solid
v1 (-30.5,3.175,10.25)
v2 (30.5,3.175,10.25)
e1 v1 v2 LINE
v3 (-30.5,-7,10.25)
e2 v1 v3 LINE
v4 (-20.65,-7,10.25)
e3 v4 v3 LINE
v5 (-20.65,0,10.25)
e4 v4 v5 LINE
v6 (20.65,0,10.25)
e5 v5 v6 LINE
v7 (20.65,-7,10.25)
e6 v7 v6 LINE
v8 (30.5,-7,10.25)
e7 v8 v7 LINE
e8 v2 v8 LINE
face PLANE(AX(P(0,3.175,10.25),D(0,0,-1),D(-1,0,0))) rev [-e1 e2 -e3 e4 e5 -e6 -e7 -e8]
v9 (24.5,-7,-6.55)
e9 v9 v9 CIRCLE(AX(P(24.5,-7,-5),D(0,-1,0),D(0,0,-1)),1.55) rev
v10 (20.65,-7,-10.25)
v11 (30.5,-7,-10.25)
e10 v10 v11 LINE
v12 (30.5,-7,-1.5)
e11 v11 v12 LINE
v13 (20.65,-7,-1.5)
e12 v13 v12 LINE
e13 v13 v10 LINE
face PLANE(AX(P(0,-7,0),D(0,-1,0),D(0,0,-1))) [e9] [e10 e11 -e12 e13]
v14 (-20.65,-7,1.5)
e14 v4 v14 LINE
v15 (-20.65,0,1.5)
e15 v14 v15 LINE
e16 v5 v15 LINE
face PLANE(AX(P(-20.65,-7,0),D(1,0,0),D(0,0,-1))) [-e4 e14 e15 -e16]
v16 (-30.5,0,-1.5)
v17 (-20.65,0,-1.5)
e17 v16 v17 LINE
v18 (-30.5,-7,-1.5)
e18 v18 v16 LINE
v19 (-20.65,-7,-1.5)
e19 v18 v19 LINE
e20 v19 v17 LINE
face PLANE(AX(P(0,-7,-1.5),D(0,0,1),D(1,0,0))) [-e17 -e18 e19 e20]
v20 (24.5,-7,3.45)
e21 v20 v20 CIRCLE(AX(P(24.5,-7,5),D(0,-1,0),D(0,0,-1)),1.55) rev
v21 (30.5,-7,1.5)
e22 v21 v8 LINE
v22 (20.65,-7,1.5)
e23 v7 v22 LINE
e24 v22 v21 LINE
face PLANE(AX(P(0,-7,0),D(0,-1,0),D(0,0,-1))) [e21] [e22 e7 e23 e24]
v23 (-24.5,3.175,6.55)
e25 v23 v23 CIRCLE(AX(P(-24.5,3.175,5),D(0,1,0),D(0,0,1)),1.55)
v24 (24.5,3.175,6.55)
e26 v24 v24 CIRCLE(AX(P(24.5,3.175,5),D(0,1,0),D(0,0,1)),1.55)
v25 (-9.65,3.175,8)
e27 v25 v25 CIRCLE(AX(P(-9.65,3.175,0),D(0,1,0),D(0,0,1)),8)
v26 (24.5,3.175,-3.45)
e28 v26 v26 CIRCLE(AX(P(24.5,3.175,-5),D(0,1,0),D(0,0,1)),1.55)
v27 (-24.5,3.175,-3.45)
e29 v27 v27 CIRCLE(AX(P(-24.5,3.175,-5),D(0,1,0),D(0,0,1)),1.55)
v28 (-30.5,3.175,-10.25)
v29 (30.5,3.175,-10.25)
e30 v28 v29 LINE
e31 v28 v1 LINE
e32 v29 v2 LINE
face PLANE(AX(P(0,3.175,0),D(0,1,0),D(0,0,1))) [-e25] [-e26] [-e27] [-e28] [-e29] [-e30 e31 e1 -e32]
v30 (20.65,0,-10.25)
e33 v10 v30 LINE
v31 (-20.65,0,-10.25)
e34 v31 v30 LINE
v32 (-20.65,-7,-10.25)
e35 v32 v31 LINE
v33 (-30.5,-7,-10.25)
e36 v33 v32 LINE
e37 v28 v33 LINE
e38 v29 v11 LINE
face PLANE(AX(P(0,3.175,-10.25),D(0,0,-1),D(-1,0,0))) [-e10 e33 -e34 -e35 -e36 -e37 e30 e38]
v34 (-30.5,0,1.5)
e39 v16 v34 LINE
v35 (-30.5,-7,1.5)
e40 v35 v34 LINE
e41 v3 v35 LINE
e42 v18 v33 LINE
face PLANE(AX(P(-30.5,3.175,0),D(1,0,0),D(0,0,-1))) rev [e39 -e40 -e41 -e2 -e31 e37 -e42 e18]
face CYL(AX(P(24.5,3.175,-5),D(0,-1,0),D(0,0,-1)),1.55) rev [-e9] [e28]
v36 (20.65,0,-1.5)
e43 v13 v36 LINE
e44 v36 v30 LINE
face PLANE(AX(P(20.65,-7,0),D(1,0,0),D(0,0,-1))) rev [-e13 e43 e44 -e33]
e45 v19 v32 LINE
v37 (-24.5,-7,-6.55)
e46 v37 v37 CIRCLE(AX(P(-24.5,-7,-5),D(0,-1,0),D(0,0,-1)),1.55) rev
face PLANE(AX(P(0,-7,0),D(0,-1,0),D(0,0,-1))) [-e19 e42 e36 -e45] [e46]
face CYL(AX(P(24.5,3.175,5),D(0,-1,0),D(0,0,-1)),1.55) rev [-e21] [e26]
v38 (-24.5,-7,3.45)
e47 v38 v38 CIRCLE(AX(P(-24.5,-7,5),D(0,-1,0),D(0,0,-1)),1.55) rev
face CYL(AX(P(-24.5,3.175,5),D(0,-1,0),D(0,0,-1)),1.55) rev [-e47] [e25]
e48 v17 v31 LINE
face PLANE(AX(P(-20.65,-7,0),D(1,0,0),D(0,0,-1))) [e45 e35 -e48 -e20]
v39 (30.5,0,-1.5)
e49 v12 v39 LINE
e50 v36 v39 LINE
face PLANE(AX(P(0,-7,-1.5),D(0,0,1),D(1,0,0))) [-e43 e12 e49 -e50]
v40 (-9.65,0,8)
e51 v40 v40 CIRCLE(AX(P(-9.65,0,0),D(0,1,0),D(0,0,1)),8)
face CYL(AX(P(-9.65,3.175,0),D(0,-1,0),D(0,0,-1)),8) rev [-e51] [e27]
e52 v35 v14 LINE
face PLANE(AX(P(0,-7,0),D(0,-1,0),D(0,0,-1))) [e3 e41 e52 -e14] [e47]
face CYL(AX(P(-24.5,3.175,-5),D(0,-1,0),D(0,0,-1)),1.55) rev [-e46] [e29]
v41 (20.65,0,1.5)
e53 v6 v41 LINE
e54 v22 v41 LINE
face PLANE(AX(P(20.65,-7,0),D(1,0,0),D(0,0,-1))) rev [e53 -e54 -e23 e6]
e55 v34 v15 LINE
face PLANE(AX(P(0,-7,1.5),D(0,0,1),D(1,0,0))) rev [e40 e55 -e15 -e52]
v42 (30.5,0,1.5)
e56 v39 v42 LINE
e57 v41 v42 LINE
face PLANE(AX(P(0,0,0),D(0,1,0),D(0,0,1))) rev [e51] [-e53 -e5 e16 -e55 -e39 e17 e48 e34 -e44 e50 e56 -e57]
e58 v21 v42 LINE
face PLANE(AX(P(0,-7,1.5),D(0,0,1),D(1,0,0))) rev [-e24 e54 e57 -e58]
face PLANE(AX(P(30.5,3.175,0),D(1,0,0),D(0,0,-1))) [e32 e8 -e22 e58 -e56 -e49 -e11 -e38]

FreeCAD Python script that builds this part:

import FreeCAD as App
import Part
import Sketcher
from FreeCAD import Vector
Q = App.Units.Quantity


def add_polygon(sketch, points):
    """Adds a closed chain of lines whose ends are joined by coincident constraints."""
    first, n = sketch.GeometryCount, len(points)
    for a, b in zip(points, points[1:] + points[:1]):
        sketch.addGeometry(Part.LineSegment(App.Vector(*a, 0), App.Vector(*b, 0)), False)
    for i in range(n):
        sketch.addConstraint(Sketcher.Constraint("Coincident", first + i, 2, first + (i + 1) % n, 1))

doc = App.newDocument("Part")
body = doc.addObject("PartDesign::Body", "Body")

# Sketch on XZ plane
sketch1 = body.newObject("Sketcher::SketchObject", "Sketch")
sketch1.AttachmentSupport = (doc.getObject("XZ_Plane"), [""])
sketch1.MapMode = "FlatFace"
add_polygon(sketch1, [(-30.5, -10.2), (-30.5, 10.2), (30.5, 10.2), (30.5, -10.2)])  # lines 0-3
sketch1.addGeometry(Part.Circle(Vector(-24.5, 5, 0), Vector(0, 0, 1), 1.6), False)  # 4
sketch1.addGeometry(Part.Circle(Vector(24.5, 5, 0), Vector(0, 0, 1), 1.6), False)  # 5
sketch1.addGeometry(Part.Circle(Vector(-9.7, 0, 0), Vector(0, 0, 1), 8), False)  # 6
sketch1.addGeometry(Part.Circle(Vector(-24.5, -5, 0), Vector(0, 0, 1), 1.6), False)  # 7
sketch1.addGeometry(Part.Circle(Vector(24.5, -5, 0), Vector(0, 0, 1), 1.6), False)  # 8
sketch1.addConstraint(Sketcher.Constraint("Vertical", 0))
sketch1.addConstraint(Sketcher.Constraint("Horizontal", 1))
sketch1.addConstraint(Sketcher.Constraint("Vertical", 2))
sketch1.addConstraint(Sketcher.Constraint("Horizontal", 3))
sketch1.addConstraint(Sketcher.Constraint("Equal", 4, 5))
sketch1.addConstraint(Sketcher.Constraint("Equal", 5, 7))
sketch1.addConstraint(Sketcher.Constraint("Equal", 7, 8))
sketch1.addConstraint(Sketcher.Constraint("Symmetric", 5, 3, 7, 3, -1, 1))
sketch1.addConstraint(Sketcher.Constraint("Symmetric", 4, 3, 8, 3, -1, 1))
sketch1.addConstraint(Sketcher.Constraint("Symmetric", 0, 2, 2, 2, -1, 1))
sketch1.addConstraint(Sketcher.Constraint("Symmetric", 4, 3, 5, 3, -2))
sketch1.addConstraint(Sketcher.Constraint("PointOnObject", 6, 3, -1))
sketch1.addConstraint(Sketcher.Constraint("Diameter", 6, Q("16 mm")))
sketch1.addConstraint(Sketcher.Constraint("Diameter", 4, Q("3.1 mm")))
sketch1.addConstraint(Sketcher.Constraint("DistanceX", 1, 1, 1, 2, Q("61 mm")))
sketch1.addConstraint(Sketcher.Constraint("DistanceY", 0, 1, 0, 2, Q("20.5 mm")))
sketch1.addConstraint(Sketcher.Constraint("DistanceY", -1, 1, 4, 3, Q("5 mm")))
sketch1.addConstraint(Sketcher.Constraint("DistanceX", 4, 3, 5, 3, Q("49 mm")))
sketch1.addConstraint(Sketcher.Constraint("DistanceX", 6, 3, -1, 1, Q("9.65 mm")))
pad1 = body.newObject("PartDesign::Pad", "Pad")
pad1.Profile = sketch1
pad1.Length = 3.175
pad1.Reversed = True

# Sketch on XZ plane
sketch2 = body.newObject("Sketcher::SketchObject", "Sketch001")
sketch2.AttachmentSupport = (doc.getObject("XZ_Plane"), [""])
sketch2.MapMode = "FlatFace"
add_polygon(sketch2, [(-30.5, 10.2), (-30.5, 1.5), (-20.6, 1.5), (-20.6, 10.2)])  # lines 0-3
sketch2.addGeometry(Part.Circle(Vector(-24.5, 5, 0), Vector(0, 0, 1), 1.6), False)  # 4
add_polygon(sketch2, [(-30.5, -1.5), (-30.5, -10.2), (-20.6, -10.2), (-20.6, -1.5)])  # lines 5-8
sketch2.addGeometry(Part.Circle(Vector(-24.5, -5, 0), Vector(0, 0, 1), 1.6), False)  # 9
add_polygon(sketch2, [(20.6, 10.2), (20.6, 1.5), (30.5, 1.5), (30.5, 10.2)])  # lines 10-13
sketch2.addGeometry(Part.Circle(Vector(24.5, 5, 0), Vector(0, 0, 1), 1.6), False)  # 14
add_polygon(sketch2, [(20.6, -1.5), (20.6, -10.2), (30.5, -10.2), (30.5, -1.5)])  # lines 15-18
sketch2.addGeometry(Part.Circle(Vector(24.5, -5, 0), Vector(0, 0, 1), 1.6), False)  # 19
sketch2.addConstraint(Sketcher.Constraint("Vertical", 0))
sketch2.addConstraint(Sketcher.Constraint("Horizontal", 1))
sketch2.addConstraint(Sketcher.Constraint("Vertical", 2))
sketch2.addConstraint(Sketcher.Constraint("Horizontal", 3))
sketch2.addConstraint(Sketcher.Constraint("Vertical", 5))
sketch2.addConstraint(Sketcher.Constraint("Horizontal", 6))
sketch2.addConstraint(Sketcher.Constraint("Vertical", 7))
sketch2.addConstraint(Sketcher.Constraint("Horizontal", 8))
sketch2.addConstraint(Sketcher.Constraint("Vertical", 10))
sketch2.addConstraint(Sketcher.Constraint("Horizontal", 11))
sketch2.addConstraint(Sketcher.Constraint("Vertical", 12))
sketch2.addConstraint(Sketcher.Constraint("Horizontal", 13))
sketch2.addConstraint(Sketcher.Constraint("Vertical", 15))
sketch2.addConstraint(Sketcher.Constraint("Horizontal", 16))
sketch2.addConstraint(Sketcher.Constraint("Vertical", 17))
sketch2.addConstraint(Sketcher.Constraint("Horizontal", 18))
sketch2.addConstraint(Sketcher.Constraint("Equal", 4, 9))
sketch2.addConstraint(Sketcher.Constraint("Equal", 9, 14))
sketch2.addConstraint(Sketcher.Constraint("Equal", 14, 19))
sketch2.addConstraint(Sketcher.Constraint("Symmetric", 9, 3, 14, 3, -1, 1))
sketch2.addConstraint(Sketcher.Constraint("Symmetric", 4, 3, 19, 3, -1, 1))
sketch2.addConstraint(Sketcher.Constraint("Symmetric", 7, 2, 10, 2, -1, 1))
sketch2.addConstraint(Sketcher.Constraint("Symmetric", 5, 2, 12, 2, -1, 1))
sketch2.addConstraint(Sketcher.Constraint("Symmetric", 2, 2, 15, 2, -1, 1))
sketch2.addConstraint(Sketcher.Constraint("Symmetric", 0, 2, 17, 2, -1, 1))
sketch2.addConstraint(Sketcher.Constraint("Symmetric", 4, 3, 14, 3, -2))
sketch2.addConstraint(Sketcher.Constraint("Symmetric", 1, 2, 10, 2, -2))
sketch2.addConstraint(Sketcher.Constraint("Symmetric", 3, 2, 12, 2, -2))
sketch2.addConstraint(Sketcher.Constraint("Diameter", 4, Q("3.1 mm")))
sketch2.addConstraint(Sketcher.Constraint("DistanceY", -1, 1, 4, 3, Q("5 mm")))
sketch2.addConstraint(Sketcher.Constraint("DistanceX", 4, 3, 14, 3, Q("49 mm")))
sketch2.addConstraint(Sketcher.Constraint("DistanceX", 0, 2, 4, 3, Q("6 mm")))
sketch2.addConstraint(Sketcher.Constraint("DistanceY", 7, 2, 1, 2, Q("3 mm")))
sketch2.addConstraint(Sketcher.Constraint("DistanceX", 1, 1, 1, 2, Q("9.85 mm")))
sketch2.addConstraint(Sketcher.Constraint("DistanceY", 0, 2, 0, 1, Q("8.75 mm")))
pad2 = body.newObject("PartDesign::Pad", "Pad001")
pad2.Profile = sketch2
pad2.Length = 7

doc.recompute()
